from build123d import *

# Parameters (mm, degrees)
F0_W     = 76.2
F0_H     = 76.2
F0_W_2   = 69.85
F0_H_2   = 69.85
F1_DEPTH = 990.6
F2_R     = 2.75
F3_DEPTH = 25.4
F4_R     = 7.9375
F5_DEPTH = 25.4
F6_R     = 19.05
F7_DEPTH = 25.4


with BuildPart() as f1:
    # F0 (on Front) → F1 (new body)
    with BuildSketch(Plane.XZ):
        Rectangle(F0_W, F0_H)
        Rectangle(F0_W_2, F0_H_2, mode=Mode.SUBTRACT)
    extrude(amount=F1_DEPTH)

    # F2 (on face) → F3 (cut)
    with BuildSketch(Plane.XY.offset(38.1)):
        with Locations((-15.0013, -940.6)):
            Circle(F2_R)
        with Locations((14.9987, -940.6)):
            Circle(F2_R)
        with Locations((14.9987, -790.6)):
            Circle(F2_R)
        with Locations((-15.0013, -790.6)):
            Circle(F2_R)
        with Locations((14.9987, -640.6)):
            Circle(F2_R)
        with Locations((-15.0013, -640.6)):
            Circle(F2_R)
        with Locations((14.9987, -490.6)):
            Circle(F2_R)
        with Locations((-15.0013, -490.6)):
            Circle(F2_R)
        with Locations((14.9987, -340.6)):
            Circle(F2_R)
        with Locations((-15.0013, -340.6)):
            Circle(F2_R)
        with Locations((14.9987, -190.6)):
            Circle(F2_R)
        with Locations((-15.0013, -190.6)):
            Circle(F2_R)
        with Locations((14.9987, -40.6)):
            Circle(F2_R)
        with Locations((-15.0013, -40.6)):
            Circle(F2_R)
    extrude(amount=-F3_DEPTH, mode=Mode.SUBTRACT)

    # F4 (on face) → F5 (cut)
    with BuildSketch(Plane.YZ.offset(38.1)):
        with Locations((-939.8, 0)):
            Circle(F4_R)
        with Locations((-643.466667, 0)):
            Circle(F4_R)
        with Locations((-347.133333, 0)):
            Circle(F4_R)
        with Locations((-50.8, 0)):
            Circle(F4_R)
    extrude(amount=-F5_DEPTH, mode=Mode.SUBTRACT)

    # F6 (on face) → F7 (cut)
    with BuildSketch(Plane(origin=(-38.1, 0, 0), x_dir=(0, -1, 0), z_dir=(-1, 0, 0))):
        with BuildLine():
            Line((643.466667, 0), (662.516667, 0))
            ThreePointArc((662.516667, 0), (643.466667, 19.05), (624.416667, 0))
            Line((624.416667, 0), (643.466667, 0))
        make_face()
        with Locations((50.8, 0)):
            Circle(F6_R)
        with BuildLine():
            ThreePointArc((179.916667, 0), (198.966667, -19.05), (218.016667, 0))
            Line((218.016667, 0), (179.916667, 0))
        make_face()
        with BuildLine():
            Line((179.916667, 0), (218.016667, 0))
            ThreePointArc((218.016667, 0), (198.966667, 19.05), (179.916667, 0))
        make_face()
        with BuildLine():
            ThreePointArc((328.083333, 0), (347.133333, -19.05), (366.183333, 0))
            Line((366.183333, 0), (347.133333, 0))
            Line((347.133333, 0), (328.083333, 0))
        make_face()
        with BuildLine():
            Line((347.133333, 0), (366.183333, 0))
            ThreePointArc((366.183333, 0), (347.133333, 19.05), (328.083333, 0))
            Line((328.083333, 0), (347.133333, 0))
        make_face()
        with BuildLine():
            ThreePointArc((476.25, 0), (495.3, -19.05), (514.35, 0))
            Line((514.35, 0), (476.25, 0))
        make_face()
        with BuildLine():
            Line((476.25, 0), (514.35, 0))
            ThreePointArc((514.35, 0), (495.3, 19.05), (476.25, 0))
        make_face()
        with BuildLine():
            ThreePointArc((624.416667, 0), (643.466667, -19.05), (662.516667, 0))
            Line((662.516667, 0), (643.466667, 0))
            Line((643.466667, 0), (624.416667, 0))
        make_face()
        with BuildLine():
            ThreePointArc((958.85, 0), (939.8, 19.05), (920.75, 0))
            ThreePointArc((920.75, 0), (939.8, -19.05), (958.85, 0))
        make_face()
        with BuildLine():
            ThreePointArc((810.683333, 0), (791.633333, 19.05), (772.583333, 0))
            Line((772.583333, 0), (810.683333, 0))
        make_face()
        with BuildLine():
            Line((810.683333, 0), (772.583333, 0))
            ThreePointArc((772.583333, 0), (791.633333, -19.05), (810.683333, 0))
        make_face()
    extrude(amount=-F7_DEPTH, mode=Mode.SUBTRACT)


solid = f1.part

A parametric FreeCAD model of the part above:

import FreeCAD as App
import Part
import Sketcher
from FreeCAD import Vector
Q = App.Units.Quantity


def add_polygon(sketch, points):
    """Adds a closed chain of lines whose ends are joined by coincident constraints."""
    first, n = sketch.GeometryCount, len(points)
    for a, b in zip(points, points[1:] + points[:1]):
        sketch.addGeometry(Part.LineSegment(App.Vector(*a, 0), App.Vector(*b, 0)), False)
    for i in range(n):
        sketch.addConstraint(Sketcher.Constraint("Coincident", first + i, 2, first + (i + 1) % n, 1))

doc = App.newDocument("Part")
body = doc.addObject("PartDesign::Body", "Body")

# Sketch on XZ plane
sketch1 = body.newObject("Sketcher::SketchObject", "Sketch")
sketch1.AttachmentSupport = (doc.getObject("XZ_Plane"), [""])
sketch1.MapMode = "FlatFace"
add_polygon(sketch1, [(-38, 38), (-38, -38), (38, -38), (38, 38)])  # lines 0-3
add_polygon(sketch1, [(35, -35), (-35, -35), (-35, 35), (35, 35)])  # lines 4-7
sketch1.addConstraint([
    Sketcher.Constraint("Vertical", 0),
    Sketcher.Constraint("Horizontal", 1),
    Sketcher.Constraint("Vertical", 2),
    Sketcher.Constraint("Horizontal", 3),
    Sketcher.Constraint("Horizontal", 4),
    Sketcher.Constraint("Vertical", 5),
    Sketcher.Constraint("Horizontal", 6),
    Sketcher.Constraint("Vertical", 7),
    Sketcher.Constraint("Symmetric", 0, 2, 2, 2, -1, 1),
    Sketcher.Constraint("Symmetric", 4, 2, 6, 2, -1, 1),
    Sketcher.Constraint("Equal", 3, 0),
    Sketcher.Constraint("Equal", 6, 5),
    Sketcher.Constraint("DistanceX", 1, 1, 1, 2, Q("3 in")),
    Sketcher.Constraint("DistanceX", 4, 2, 4, 1, Q("2.75 in")),
])
pad1 = body.newObject("PartDesign::Pad", "Pad")
pad1.Profile = sketch1
pad1.Length = Q("39 in")

# Sketch on XY plane
sketch2 = body.newObject("Sketcher::SketchObject", "Sketch001")
sketch2.AttachmentSupport = (doc.getObject("XY_Plane"), [""])
sketch2.MapMode = "FlatFace"
sketch2.AttachmentOffset = App.Placement(Vector(0, 0, 1.5 * 25.4), App.Rotation())
sketch2.addGeometry([
    Part.Circle(Vector(-15, -940.6, 0), Vector(0, 0, 1), 2.8),  # 0
    Part.Circle(Vector(15, -940.6, 0), Vector(0, 0, 1), 2.8),  # 1
    Part.Circle(Vector(15, -790.6, 0), Vector(0, 0, 1), 2.8),  # 2
    Part.Circle(Vector(-15, -790.6, 0), Vector(0, 0, 1), 2.8),  # 3
    Part.Circle(Vector(15, -640.6, 0), Vector(0, 0, 1), 2.8),  # 4
    Part.Circle(Vector(-15, -640.6, 0), Vector(0, 0, 1), 2.8),  # 5
    Part.Circle(Vector(15, -490.6, 0), Vector(0, 0, 1), 2.8),  # 6
    Part.Circle(Vector(-15, -490.6, 0), Vector(0, 0, 1), 2.8),  # 7
    Part.Circle(Vector(15, -340.6, 0), Vector(0, 0, 1), 2.8),  # 8
    Part.Circle(Vector(-15, -340.6, 0), Vector(0, 0, 1), 2.8),  # 9
    Part.Circle(Vector(15, -190.6, 0), Vector(0, 0, 1), 2.8),  # 10
    Part.Circle(Vector(-15, -190.6, 0), Vector(0, 0, 1), 2.8),  # 11
    Part.Circle(Vector(15, -40.6, 0), Vector(0, 0, 1), 2.8),  # 12
    Part.Circle(Vector(-15, -40.6, 0), Vector(0, 0, 1), 2.8),  # 13
], False)
sketch2.addConstraint([
    Sketcher.Constraint("Equal", 0, 1),
    Sketcher.Constraint("Equal", 1, 2),
    Sketcher.Constraint("Equal", 2, 3),
    Sketcher.Constraint("Equal", 3, 4),
    Sketcher.Constraint("Equal", 4, 5),
    Sketcher.Constraint("Equal", 5, 6),
    Sketcher.Constraint("Equal", 6, 7),
    Sketcher.Constraint("Equal", 7, 8),
    Sketcher.Constraint("Equal", 8, 9),
    Sketcher.Constraint("Equal", 9, 10),
    Sketcher.Constraint("Equal", 10, 11),
    Sketcher.Constraint("Equal", 11, 12),
    Sketcher.Constraint("Equal", 12, 13),
    Sketcher.Constraint("Horizontal", 0, 3, 1, 3),
    Sketcher.Constraint("Horizontal", 2, 3, 3, 3),
    Sketcher.Constraint("Horizontal", 4, 3, 5, 3),
    Sketcher.Constraint("Horizontal", 6, 3, 7, 3),
    Sketcher.Constraint("Horizontal", 8, 3, 9, 3),
    Sketcher.Constraint("Horizontal", 10, 3, 11, 3),
    Sketcher.Constraint("Horizontal", 12, 3, 13, 3),
    Sketcher.Constraint("Vertical", 1, 3, 2, 3),
    Sketcher.Constraint("Vertical", 0, 3, 3, 3),
    Sketcher.Constraint("Vertical", 2, 3, 4, 3),
    Sketcher.Constraint("Vertical", 3, 3, 5, 3),
    Sketcher.Constraint("Vertical", 4, 3, 6, 3),
    Sketcher.Constraint("Vertical", 5, 3, 7, 3),
    Sketcher.Constraint("Vertical", 6, 3, 8, 3),
    Sketcher.Constraint("Vertical", 7, 3, 9, 3),
    Sketcher.Constraint("Vertical", 8, 3, 10, 3),
    Sketcher.Constraint("Vertical", 9, 3, 11, 3),
    Sketcher.Constraint("Vertical", 10, 3, 12, 3),
    Sketcher.Constraint("Vertical", 11, 3, 13, 3),
    Sketcher.Constraint("Diameter", 0, Q("5.5 mm")),
    Sketcher.Constraint("DistanceX", -1, 1, 1, 3, Q("0.5905 in")),
    Sketcher.Constraint("DistanceX", 0, 3, -1, 1, Q("15.0013 mm")),
    Sketcher.Constraint("DistanceY", 0, 3, -1, 1, Q("940.6 mm")),
    Sketcher.Constraint("DistanceY", 2, 3, -1, 1, Q("790.6 mm")),
    Sketcher.Constraint("DistanceY", 4, 3, -1, 1, Q("640.6 mm")),
    Sketcher.Constraint("DistanceY", 6, 3, -1, 1, Q("490.6 mm")),
    Sketcher.Constraint("DistanceY", 8, 3, -1, 1, Q("340.6 mm")),
    Sketcher.Constraint("DistanceY", 10, 3, -1, 1, Q("190.6 mm")),
    Sketcher.Constraint("DistanceY", 12, 3, -1, 1, Q("40.6 mm")),
])
pocket1 = body.newObject("PartDesign::Pocket", "Pocket")
pocket1.Profile = sketch2
pocket1.Length = Q("1 in")

# Sketch on YZ plane
sketch3 = body.newObject("Sketcher::SketchObject", "Sketch002")
sketch3.AttachmentSupport = (doc.getObject("YZ_Plane"), [""])
sketch3.MapMode = "FlatFace"
sketch3.AttachmentOffset = App.Placement(Vector(0, 0, 1.5 * 25.4), App.Rotation())
sketch3.addGeometry([
    Part.Circle(Vector(-940, 0, 0), Vector(0, 0, 1), 8),
    Part.Circle(Vector(-643, 0, 0), Vector(0, 0, 1), 8),
    Part.Circle(Vector(-347, 0, 0), Vector(0, 0, 1), 8),
    Part.Circle(Vector(-51, 0, 0), Vector(0, 0, 1), 8),
], False)
sketch3.addConstraint([
    Sketcher.Constraint("Equal", 0, 1),
    Sketcher.Constraint("Equal", 1, 2),
    Sketcher.Constraint("Equal", 2, 3),
    Sketcher.Constraint("PointOnObject", 0, 3, -1),
    Sketcher.Constraint("PointOnObject", 1, 3, -1),
    Sketcher.Constraint("PointOnObject", 2, 3, -1),
    Sketcher.Constraint("PointOnObject", 3, 3, -1),
    Sketcher.Constraint("Diameter", 0, Q("0.625 in")),
    Sketcher.Constraint("DistanceX", 0, 3, -1, 1, Q("37 in")),
    Sketcher.Constraint("DistanceX", 3, 3, -1, 1, Q("2 in")),
    Sketcher.Constraint("DistanceX", 1, 3, -1, 1, Q("643.466667 mm")),
    Sketcher.Constraint("DistanceX", 2, 3, -1, 1, Q("347.133333 mm")),
])
pocket2 = body.newObject("PartDesign::Pocket", "Pocket001")
pocket2.Profile = sketch3
pocket2.Length = Q("1 in")

# Sketch on YZ plane
sketch4 = body.newObject("Sketcher::SketchObject", "Sketch003")
sketch4.AttachmentSupport = (doc.getObject("YZ_Plane"), [""])
sketch4.MapMode = "FlatFace"
sketch4.AttachmentOffset = App.Placement(Vector(0, 0, -1.5 * 25.4), App.Rotation())
sketch4.addGeometry([
    Part.Circle(Vector(-643, 0, 0), Vector(0, 0, 1), 19),  # 0
    Part.Circle(Vector(-51, 0, 0), Vector(0, 0, 1), 19),  # 1
    Part.Circle(Vector(-199, 0, 0), Vector(0, 0, 1), 19),  # 2
    Part.Circle(Vector(-347, 0, 0), Vector(0, 0, 1), 19),  # 3
    Part.Circle(Vector(-495, 0, 0), Vector(0, 0, 1), 19),  # 4
    Part.Circle(Vector(-940, 0, 0), Vector(0, 0, 1), 19),  # 5
    Part.Circle(Vector(-792, 0, 0), Vector(0, 0, 1), 19),  # 6
], False)
sketch4.addConstraint([
    Sketcher.Constraint("Equal", 0, 1),
    Sketcher.Constraint("Equal", 1, 2),
    Sketcher.Constraint("Equal", 2, 3),
    Sketcher.Constraint("Equal", 3, 4),
    Sketcher.Constraint("Equal", 4, 5),
    Sketcher.Constraint("Equal", 5, 6),
    Sketcher.Constraint("PointOnObject", 0, 3, -1),
    Sketcher.Constraint("PointOnObject", 1, 3, -1),
    Sketcher.Constraint("PointOnObject", 2, 3, -1),
    Sketcher.Constraint("PointOnObject", 3, 3, -1),
    Sketcher.Constraint("PointOnObject", 4, 3, -1),
    Sketcher.Constraint("PointOnObject", 5, 3, -1),
    Sketcher.Constraint("PointOnObject", 6, 3, -1),
    Sketcher.Constraint("Diameter", 0, Q("1.5 in")),
    Sketcher.Constraint("DistanceX", 1, 3, -1, 1, Q("2 in")),
    Sketcher.Constraint("DistanceX", 5, 3, -1, 1, Q("37 in")),
    Sketcher.Constraint("DistanceX", 4, 3, -1, 1, Q("19.5 in")),
    Sketcher.Constraint("DistanceX", 0, 3, 2, 3, Q("17.5 in")),
    Sketcher.Constraint("DistanceX", 6, 3, 3, 3, Q("17.5 in")),
    Sketcher.Constraint("DistanceX", 0, 3, -1, 1, Q("643.466667 mm")),
    Sketcher.Constraint("DistanceX", 3, 3, -1, 1, Q("347.133333 mm")),
])
pocket3 = body.newObject("PartDesign::Pocket", "Pocket002")
pocket3.Profile = sketch4
pocket3.Length = Q("1 in")
pocket3.Reversed = True

doc.recompute()
